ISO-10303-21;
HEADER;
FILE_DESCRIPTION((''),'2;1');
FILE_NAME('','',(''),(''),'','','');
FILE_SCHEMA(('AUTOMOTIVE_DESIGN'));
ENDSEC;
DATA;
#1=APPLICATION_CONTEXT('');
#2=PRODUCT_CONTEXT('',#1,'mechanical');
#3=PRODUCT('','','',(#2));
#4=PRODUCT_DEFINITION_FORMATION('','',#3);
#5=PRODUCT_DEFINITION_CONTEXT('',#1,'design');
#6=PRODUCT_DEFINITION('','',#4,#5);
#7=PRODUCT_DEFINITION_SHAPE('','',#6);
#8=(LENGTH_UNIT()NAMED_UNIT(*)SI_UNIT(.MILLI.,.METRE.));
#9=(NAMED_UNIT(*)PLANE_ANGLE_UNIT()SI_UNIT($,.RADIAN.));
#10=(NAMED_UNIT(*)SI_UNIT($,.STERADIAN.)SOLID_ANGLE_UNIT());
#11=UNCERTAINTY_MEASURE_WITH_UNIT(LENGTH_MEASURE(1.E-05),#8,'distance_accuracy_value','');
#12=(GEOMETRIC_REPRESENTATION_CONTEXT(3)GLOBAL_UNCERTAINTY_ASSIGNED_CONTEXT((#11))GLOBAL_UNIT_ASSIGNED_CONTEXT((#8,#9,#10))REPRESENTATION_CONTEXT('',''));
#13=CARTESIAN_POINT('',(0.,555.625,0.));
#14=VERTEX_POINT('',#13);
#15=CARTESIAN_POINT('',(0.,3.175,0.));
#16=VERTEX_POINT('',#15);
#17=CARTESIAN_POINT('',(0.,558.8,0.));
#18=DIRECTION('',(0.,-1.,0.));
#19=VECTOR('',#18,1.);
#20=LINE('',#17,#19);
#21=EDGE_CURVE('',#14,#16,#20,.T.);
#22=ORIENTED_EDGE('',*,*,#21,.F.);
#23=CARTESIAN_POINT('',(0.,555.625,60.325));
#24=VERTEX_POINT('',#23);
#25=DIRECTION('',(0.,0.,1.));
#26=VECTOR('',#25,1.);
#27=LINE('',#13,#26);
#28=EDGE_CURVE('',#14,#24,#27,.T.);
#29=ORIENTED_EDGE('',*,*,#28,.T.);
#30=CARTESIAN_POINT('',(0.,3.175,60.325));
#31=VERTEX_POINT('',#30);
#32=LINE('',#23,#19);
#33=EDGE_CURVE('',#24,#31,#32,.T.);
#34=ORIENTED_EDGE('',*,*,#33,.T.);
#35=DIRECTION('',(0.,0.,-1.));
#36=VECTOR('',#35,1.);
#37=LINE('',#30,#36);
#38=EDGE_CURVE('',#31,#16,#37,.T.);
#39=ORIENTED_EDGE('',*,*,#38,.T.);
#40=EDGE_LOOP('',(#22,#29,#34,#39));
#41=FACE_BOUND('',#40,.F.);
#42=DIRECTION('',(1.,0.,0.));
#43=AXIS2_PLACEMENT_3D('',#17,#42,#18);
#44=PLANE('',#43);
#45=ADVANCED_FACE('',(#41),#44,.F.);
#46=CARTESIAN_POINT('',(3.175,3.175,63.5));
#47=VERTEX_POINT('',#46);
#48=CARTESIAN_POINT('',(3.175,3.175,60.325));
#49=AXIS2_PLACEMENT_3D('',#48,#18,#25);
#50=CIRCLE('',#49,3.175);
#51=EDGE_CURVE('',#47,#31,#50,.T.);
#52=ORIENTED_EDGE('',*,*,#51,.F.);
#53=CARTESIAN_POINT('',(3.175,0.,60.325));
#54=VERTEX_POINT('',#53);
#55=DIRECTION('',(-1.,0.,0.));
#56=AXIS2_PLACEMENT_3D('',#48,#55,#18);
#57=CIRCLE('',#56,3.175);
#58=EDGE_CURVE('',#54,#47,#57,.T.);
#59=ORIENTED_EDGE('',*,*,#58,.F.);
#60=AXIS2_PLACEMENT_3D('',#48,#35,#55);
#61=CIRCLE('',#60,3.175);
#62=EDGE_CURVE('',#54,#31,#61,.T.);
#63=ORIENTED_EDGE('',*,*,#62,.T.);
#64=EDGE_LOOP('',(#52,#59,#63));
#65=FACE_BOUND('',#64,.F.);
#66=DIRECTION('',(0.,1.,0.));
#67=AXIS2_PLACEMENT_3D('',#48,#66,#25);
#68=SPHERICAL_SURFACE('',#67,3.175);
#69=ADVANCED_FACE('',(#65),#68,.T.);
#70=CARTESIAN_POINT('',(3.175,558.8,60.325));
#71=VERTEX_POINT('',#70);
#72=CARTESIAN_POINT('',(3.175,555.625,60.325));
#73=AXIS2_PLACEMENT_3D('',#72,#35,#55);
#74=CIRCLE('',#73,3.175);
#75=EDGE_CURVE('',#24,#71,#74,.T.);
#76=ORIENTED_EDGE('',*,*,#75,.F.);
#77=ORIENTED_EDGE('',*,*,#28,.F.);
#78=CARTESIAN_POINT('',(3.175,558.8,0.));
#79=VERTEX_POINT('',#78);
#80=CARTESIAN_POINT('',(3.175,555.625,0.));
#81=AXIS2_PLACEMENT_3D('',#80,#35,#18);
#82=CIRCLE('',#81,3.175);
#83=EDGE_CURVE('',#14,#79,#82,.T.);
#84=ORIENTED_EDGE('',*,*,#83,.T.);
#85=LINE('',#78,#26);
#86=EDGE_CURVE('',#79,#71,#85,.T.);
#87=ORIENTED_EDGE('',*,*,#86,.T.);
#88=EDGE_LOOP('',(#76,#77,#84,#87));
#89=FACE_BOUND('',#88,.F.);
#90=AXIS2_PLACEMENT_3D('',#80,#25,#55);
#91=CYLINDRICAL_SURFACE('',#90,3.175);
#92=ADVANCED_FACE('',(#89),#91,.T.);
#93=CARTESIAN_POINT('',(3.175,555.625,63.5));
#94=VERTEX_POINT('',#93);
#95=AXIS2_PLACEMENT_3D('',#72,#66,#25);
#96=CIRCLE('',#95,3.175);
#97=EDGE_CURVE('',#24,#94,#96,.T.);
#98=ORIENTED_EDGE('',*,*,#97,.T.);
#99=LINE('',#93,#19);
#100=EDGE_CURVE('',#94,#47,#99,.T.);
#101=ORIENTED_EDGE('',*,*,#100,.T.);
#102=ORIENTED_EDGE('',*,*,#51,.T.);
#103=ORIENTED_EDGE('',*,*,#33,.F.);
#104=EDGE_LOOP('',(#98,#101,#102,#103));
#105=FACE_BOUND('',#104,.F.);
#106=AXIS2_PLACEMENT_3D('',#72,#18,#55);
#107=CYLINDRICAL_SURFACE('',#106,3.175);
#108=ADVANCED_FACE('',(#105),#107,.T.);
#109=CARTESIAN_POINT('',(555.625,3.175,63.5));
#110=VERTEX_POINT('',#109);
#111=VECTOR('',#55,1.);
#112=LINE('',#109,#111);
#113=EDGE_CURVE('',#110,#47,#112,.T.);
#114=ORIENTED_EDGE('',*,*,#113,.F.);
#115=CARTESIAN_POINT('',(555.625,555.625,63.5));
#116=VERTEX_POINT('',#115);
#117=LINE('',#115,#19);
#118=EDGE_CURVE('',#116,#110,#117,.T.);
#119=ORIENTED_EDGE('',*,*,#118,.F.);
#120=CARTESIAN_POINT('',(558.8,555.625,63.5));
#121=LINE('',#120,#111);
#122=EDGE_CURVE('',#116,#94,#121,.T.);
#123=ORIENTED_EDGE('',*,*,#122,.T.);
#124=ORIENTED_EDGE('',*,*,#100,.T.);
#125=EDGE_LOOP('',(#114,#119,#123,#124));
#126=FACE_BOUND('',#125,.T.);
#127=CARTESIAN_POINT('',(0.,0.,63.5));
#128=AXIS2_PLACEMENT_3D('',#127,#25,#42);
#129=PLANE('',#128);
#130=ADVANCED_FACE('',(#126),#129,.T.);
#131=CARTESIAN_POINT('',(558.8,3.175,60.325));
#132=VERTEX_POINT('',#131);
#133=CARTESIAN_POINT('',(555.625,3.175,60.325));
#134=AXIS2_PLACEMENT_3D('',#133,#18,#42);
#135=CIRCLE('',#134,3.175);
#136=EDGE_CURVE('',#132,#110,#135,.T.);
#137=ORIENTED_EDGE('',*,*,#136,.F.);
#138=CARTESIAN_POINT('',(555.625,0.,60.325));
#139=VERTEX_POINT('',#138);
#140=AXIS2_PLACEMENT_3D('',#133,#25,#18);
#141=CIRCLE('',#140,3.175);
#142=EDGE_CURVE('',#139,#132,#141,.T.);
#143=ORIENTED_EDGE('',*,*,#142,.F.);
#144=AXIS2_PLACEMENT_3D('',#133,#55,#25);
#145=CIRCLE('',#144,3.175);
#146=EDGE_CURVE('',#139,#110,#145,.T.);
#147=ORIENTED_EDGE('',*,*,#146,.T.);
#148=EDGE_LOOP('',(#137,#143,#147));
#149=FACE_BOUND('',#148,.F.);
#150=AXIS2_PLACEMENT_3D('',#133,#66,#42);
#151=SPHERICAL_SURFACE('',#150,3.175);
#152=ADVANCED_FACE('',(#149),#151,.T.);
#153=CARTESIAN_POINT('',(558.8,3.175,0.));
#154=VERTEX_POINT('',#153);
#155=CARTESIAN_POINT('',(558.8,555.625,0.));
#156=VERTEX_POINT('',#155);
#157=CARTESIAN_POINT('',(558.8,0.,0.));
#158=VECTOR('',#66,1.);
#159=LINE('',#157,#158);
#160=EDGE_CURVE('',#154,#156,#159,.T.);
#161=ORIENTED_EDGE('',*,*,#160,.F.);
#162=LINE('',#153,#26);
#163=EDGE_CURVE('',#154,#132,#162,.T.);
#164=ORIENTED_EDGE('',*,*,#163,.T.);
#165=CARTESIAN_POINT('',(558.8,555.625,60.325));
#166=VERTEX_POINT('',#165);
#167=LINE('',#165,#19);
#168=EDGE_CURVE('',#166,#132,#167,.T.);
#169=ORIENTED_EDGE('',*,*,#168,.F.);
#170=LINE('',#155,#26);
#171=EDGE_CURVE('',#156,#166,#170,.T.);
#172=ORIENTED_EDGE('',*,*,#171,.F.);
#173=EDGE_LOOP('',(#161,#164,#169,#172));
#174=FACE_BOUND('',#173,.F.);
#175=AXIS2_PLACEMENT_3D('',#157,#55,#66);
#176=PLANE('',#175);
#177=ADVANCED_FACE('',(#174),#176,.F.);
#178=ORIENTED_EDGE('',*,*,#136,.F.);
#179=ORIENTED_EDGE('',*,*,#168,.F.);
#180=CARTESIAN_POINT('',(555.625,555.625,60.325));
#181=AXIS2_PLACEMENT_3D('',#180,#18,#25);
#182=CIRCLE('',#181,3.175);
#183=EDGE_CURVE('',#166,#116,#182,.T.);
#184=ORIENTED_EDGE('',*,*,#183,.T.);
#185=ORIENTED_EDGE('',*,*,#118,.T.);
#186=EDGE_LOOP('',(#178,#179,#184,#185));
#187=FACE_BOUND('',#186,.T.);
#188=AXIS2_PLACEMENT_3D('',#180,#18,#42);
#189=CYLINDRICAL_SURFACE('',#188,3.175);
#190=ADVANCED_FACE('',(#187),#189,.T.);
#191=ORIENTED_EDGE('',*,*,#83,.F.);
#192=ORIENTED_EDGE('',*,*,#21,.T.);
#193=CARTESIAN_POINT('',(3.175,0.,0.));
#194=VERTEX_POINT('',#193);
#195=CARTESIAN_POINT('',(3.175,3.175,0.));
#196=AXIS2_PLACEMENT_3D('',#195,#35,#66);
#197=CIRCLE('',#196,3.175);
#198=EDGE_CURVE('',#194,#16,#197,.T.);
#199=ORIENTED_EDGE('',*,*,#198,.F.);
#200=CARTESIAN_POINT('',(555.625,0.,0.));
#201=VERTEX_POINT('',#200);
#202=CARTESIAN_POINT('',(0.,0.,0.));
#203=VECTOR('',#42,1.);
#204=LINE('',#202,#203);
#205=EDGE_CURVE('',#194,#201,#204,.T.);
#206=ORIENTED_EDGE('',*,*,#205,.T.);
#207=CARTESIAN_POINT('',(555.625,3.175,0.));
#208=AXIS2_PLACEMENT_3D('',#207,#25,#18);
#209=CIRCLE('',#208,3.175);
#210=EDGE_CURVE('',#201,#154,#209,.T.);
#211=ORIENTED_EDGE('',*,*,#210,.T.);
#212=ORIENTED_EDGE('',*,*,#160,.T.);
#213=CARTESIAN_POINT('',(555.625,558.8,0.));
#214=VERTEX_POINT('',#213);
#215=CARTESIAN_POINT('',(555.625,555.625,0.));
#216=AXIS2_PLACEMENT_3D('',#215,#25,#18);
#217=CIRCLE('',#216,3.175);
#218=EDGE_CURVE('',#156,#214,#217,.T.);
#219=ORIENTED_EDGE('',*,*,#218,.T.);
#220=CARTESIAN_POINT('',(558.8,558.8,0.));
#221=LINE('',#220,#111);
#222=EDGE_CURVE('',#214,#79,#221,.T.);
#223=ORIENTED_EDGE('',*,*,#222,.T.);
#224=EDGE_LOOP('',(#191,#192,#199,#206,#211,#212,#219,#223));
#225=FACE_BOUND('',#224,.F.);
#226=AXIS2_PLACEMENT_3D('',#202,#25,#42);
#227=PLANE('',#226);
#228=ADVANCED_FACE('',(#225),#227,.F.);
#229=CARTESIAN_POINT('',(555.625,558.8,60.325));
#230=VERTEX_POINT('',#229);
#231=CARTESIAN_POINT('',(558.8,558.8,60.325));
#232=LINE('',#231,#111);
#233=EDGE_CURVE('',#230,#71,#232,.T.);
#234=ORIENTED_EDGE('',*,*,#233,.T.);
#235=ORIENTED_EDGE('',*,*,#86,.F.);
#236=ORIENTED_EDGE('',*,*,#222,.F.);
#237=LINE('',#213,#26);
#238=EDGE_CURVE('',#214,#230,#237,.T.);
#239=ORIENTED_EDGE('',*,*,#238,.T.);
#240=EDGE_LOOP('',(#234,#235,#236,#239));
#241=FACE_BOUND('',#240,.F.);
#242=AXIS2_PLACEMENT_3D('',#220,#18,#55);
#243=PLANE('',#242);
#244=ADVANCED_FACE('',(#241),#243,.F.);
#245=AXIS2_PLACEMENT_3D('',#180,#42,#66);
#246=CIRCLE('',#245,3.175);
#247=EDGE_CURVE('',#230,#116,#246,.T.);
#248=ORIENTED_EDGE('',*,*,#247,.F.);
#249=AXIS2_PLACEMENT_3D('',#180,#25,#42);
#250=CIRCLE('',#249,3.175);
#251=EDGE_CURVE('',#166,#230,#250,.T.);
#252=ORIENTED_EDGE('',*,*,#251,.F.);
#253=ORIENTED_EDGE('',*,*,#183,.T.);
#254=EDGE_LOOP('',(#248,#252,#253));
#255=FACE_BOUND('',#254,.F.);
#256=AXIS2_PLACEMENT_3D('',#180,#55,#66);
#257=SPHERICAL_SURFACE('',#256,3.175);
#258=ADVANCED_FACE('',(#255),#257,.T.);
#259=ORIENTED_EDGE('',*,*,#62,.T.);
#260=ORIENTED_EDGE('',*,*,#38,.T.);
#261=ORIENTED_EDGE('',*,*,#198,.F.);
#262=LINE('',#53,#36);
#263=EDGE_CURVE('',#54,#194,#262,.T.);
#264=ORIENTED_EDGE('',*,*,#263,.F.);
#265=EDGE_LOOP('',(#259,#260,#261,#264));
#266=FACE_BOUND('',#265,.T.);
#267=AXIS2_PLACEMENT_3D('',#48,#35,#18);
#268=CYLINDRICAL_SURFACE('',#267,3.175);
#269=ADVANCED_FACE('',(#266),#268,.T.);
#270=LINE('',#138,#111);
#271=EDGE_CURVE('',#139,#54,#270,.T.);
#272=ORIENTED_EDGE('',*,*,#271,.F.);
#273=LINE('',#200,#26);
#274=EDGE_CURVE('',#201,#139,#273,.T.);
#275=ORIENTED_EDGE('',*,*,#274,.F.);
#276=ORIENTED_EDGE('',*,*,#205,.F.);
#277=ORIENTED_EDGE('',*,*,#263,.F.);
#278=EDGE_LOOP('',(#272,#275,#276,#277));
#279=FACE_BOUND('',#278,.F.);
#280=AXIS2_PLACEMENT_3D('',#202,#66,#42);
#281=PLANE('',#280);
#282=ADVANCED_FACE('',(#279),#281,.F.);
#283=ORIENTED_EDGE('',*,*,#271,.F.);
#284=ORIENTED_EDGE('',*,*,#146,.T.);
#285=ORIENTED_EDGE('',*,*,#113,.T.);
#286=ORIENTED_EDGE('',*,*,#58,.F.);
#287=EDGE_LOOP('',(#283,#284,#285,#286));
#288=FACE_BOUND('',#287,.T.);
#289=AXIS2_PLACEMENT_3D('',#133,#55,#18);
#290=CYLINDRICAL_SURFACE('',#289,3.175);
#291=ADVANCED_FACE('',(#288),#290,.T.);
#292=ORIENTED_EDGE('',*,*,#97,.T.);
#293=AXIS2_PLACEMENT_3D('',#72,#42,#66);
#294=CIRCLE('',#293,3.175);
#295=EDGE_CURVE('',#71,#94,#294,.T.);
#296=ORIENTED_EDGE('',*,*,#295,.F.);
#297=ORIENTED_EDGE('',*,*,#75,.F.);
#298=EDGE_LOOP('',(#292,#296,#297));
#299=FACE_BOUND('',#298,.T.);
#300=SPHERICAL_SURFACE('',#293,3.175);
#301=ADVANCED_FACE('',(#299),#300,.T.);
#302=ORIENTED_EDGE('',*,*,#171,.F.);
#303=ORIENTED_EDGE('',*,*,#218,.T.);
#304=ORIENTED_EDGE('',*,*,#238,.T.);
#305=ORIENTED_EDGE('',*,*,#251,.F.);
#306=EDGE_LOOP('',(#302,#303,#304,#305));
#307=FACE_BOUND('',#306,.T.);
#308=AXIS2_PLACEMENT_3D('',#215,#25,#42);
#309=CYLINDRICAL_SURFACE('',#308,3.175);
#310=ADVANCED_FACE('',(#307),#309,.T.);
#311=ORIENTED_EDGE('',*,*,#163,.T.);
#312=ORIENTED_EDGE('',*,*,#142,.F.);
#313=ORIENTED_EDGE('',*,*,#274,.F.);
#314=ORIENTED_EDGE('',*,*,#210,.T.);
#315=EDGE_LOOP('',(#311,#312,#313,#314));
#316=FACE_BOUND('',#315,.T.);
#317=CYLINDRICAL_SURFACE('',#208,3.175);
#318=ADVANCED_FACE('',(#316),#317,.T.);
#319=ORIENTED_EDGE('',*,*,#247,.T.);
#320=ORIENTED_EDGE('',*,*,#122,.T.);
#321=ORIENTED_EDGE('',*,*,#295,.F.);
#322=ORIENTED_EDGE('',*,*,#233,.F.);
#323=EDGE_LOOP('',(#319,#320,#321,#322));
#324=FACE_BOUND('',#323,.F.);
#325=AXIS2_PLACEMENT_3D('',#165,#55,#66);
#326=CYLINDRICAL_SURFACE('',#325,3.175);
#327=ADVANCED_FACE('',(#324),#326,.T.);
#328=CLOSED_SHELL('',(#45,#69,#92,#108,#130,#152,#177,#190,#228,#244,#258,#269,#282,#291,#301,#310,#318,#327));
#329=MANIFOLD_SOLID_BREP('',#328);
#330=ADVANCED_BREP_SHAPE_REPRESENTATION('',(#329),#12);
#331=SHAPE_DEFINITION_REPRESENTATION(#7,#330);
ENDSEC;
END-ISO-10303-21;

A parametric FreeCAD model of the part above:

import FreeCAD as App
import Part
import Sketcher
from FreeCAD import Vector
Q = App.Units.Quantity


def edges_at(feature, points):
    """Names of the edges that pass closest to the given points."""
    edges = feature.Shape.Edges
    near = lambda p: min(range(len(edges)), key=lambda i: edges[i].distToShape(Part.Vertex(*p))[0])
    return sorted({f"Edge{near(p) + 1}" for p in points})

doc = App.newDocument("Part")
body = doc.addObject("PartDesign::Body", "Body")

# Sketch on XY plane
sketch1 = body.newObject("Sketcher::SketchObject", "Sketch")
sketch1.AttachmentSupport = (doc.getObject("XY_Plane"), [""])
sketch1.MapMode = "FlatFace"
sketch1.addGeometry([
    Part.LineSegment(Vector(0, 559, 0), Vector(0, 0, 0)),
    Part.LineSegment(Vector(0, 0, 0), Vector(559, 0, 0)),
    Part.LineSegment(Vector(559, 0, 0), Vector(559, 559, 0)),
    Part.LineSegment(Vector(559, 559, 0), Vector(0, 559, 0)),
], False)
sketch1.addConstraint([
    Sketcher.Constraint("Coincident", 0, 2, 1, 1),
    Sketcher.Constraint("Coincident", 1, 2, 2, 1),
    Sketcher.Constraint("Coincident", 2, 2, 3, 1),
    Sketcher.Constraint("Coincident", 3, 2, 0, 1),
    Sketcher.Constraint("Vertical", 0),
    Sketcher.Constraint("Horizontal", 1),
    Sketcher.Constraint("Vertical", 2),
    Sketcher.Constraint("Horizontal", 3),
    Sketcher.Constraint("Coincident", 0, 2, -1, 1),
    Sketcher.Constraint("Equal", 3, 0),
    Sketcher.Constraint("DistanceX", 1, 1, 1, 2, Q("22 in")),
])
pad1 = body.newObject("PartDesign::Pad", "Pad")
pad1.Profile = sketch1
pad1.Length = Q("2.5 in")
doc.recompute()

fillet = body.newObject("PartDesign::Fillet", "Fillet")
fillet.Base = (pad1, edges_at(pad1, [(279.4, 558.8, 63.5)]))
fillet.Radius = Q("0.125 in")
doc.recompute()

fillet2 = body.newObject("PartDesign::Fillet", "Fillet001")
fillet2.Base = (fillet, edges_at(fillet, [(0, 557.87, 62.57), (0, 558.8, 30.163), (0, 277.812, 63.5)]))
fillet2.Radius = Q("0.125 in")
doc.recompute()

fillet3 = body.newObject("PartDesign::Fillet", "Fillet002")
fillet3.Base = (fillet2, edges_at(fillet2, [(558.8, 557.87, 62.57), (558.8, 558.8, 30.163), (558.8, 277.812, 63.5)]))
fillet3.Radius = Q("0.125 in")
doc.recompute()

fillet4 = body.newObject("PartDesign::Fillet", "Fillet003")
fillet4.Base = (fillet3, edges_at(fillet3, [
    (557.87, 0, 62.57),
    (558.8, 0, 30.163),
    (0.93, 0, 62.57),
    (0, 0, 30.163),
    (279.4, 0, 63.5),
]))
fillet4.Radius = Q("0.125 in")

doc.recompute()
